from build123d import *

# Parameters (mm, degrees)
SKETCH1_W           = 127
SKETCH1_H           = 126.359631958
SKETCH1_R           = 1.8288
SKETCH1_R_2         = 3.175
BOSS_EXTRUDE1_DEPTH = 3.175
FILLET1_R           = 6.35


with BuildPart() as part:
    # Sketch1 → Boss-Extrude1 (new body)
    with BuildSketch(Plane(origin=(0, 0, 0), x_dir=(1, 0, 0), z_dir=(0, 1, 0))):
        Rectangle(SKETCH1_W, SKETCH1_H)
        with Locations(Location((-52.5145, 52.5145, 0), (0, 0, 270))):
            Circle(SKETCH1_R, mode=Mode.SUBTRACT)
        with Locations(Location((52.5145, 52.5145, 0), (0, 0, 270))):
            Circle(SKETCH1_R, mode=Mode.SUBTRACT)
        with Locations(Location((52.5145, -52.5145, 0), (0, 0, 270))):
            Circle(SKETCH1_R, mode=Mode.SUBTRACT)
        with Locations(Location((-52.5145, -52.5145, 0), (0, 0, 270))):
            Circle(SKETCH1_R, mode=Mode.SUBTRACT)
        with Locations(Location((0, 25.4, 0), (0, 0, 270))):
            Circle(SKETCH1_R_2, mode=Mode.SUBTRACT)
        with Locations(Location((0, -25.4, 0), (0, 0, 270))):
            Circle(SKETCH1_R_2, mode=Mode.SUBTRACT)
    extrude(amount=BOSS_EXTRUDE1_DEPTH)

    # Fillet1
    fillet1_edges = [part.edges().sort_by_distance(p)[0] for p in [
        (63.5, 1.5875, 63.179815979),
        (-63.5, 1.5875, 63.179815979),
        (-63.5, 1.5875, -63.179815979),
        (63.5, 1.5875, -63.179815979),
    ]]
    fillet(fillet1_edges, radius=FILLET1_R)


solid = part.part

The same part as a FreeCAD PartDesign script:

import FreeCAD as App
import Part
import Sketcher
from FreeCAD import Vector
Q = App.Units.Quantity


def edges_at(feature, points):
    """Names of the edges that pass closest to the given points."""
    edges = feature.Shape.Edges
    near = lambda p: min(range(len(edges)), key=lambda i: edges[i].distToShape(Part.Vertex(*p))[0])
    return sorted({f"Edge{near(p) + 1}" for p in points})

doc = App.newDocument("Part")
params = doc.addObject("Spreadsheet::Sheet", "Params")
for row, (alias, value) in enumerate([
    ("sketch1_diameter", "0.25 in"),
    ("sketch1_width", "5 in"),
    ("sketch1_diameter2", "0.144 in"),
    ("pad1_length", "0.125 in"),
    ("fillet_radius", "0.25 in"),
], start=1):
    params.set(f"A{row}", alias)
    params.set(f"B{row}", "=" + value)
    params.setAlias(f"B{row}", alias)

body = doc.addObject("PartDesign::Body", "Body")

sketch1 = body.newObject("Sketcher::SketchObject", "Sketch")
sketch1.AttachmentSupport = (doc.getObject("XZ_Plane"), [""])
sketch1.MapMode = "FlatFace"
sketch1.addGeometry([
    Part.LineSegment(Vector(-63.5, -63.179816, 0), Vector(-63.5, 63.179816, 0)),
    Part.LineSegment(Vector(-63.5, 63.179816, 0), Vector(63.5, 63.179816, 0)),
    Part.LineSegment(Vector(63.5, 63.179816, 0), Vector(63.5, -63.179816, 0)),
    Part.LineSegment(Vector(63.5, -63.179816, 0), Vector(-63.5, -63.179816, 0)),
    Part.Circle(Vector(-52.5145, 52.5145, 0), Vector(0, 0, 1), 1.8288),
    Part.Circle(Vector(52.5145, 52.5145, 0), Vector(0, 0, 1), 1.8288),
    Part.Circle(Vector(0, 25.4, 0), Vector(0, 0, 1), 3.175),
    Part.Circle(Vector(-52.5145, -52.5145, 0), Vector(0, 0, 1), 1.8288),
    Part.Circle(Vector(0, -25.4, 0), Vector(0, 0, 1), 3.175),
    Part.Circle(Vector(52.5145, -52.5145, 0), Vector(0, 0, 1), 1.8288),
], False)
sketch1.addConstraint([
    Sketcher.Constraint("Coincident", 0, 2, 1, 1),
    Sketcher.Constraint("Coincident", 1, 2, 2, 1),
    Sketcher.Constraint("Coincident", 2, 2, 3, 1),
    Sketcher.Constraint("Coincident", 3, 2, 0, 1),
    Sketcher.Constraint("Vertical", 0),
    Sketcher.Constraint("Horizontal", 1),
    Sketcher.Constraint("Vertical", 2),
    Sketcher.Constraint("Horizontal", 3),
    Sketcher.Constraint("Equal", 4, 5),
    Sketcher.Constraint("Equal", 5, 7),
    Sketcher.Constraint("Equal", 6, 8),
    Sketcher.Constraint("Equal", 7, 9),
    Sketcher.Constraint("Symmetric", 5, 3, 7, 3, -1, 1),
    Sketcher.Constraint("Symmetric", 6, 3, 8, 3, -1, 1),
    Sketcher.Constraint("Symmetric", 4, 3, 9, 3, -1, 1),
    Sketcher.Constraint("Symmetric", 0, 2, 2, 2, -1, 1),
    Sketcher.Constraint("Symmetric", 4, 3, 5, 3, -2),
    Sketcher.Constraint("PointOnObject", 6, 3, -2),
    Sketcher.Constraint("Diameter", 6, Q("0.25 in")),
    Sketcher.Constraint("DistanceX", 1, 1, 1, 2, Q("5 in")),
    Sketcher.Constraint("Diameter", 4, Q("0.144 in")),
    Sketcher.Constraint("DistanceY", -1, 1, 6, 3, Q("1 in")),
    Sketcher.Constraint("DistanceX", 4, 3, 5, 3, Q("4.135 in")),
    Sketcher.Constraint("DistanceY", 7, 3, 4, 3, Q("4.135 in")),
    Sketcher.Constraint("DistanceY", 0, 1, 0, 2, 126.359632),
])
sketch1.setExpression("Constraints[18]", "Params.sketch1_diameter")
sketch1.setExpression("Constraints[19]", "Params.sketch1_width")
sketch1.setExpression("Constraints[20]", "Params.sketch1_diameter2")
pad1 = body.newObject("PartDesign::Pad", "Pad")
pad1.Profile = sketch1
pad1.setExpression("Length", "Params.pad1_length")
pad1.Reversed = True
doc.recompute()

fillet = body.newObject("PartDesign::Fillet", "Fillet")
fillet.Base = (pad1, edges_at(pad1, [
    (63.5, 1.587, 63.18),
    (-63.5, 1.587, 63.18),
    (-63.5, 1.587, -63.18),
    (63.5, 1.587, -63.18),
]))
fillet.setExpression("Radius", "Params.fillet_radius")

doc.recompute()
